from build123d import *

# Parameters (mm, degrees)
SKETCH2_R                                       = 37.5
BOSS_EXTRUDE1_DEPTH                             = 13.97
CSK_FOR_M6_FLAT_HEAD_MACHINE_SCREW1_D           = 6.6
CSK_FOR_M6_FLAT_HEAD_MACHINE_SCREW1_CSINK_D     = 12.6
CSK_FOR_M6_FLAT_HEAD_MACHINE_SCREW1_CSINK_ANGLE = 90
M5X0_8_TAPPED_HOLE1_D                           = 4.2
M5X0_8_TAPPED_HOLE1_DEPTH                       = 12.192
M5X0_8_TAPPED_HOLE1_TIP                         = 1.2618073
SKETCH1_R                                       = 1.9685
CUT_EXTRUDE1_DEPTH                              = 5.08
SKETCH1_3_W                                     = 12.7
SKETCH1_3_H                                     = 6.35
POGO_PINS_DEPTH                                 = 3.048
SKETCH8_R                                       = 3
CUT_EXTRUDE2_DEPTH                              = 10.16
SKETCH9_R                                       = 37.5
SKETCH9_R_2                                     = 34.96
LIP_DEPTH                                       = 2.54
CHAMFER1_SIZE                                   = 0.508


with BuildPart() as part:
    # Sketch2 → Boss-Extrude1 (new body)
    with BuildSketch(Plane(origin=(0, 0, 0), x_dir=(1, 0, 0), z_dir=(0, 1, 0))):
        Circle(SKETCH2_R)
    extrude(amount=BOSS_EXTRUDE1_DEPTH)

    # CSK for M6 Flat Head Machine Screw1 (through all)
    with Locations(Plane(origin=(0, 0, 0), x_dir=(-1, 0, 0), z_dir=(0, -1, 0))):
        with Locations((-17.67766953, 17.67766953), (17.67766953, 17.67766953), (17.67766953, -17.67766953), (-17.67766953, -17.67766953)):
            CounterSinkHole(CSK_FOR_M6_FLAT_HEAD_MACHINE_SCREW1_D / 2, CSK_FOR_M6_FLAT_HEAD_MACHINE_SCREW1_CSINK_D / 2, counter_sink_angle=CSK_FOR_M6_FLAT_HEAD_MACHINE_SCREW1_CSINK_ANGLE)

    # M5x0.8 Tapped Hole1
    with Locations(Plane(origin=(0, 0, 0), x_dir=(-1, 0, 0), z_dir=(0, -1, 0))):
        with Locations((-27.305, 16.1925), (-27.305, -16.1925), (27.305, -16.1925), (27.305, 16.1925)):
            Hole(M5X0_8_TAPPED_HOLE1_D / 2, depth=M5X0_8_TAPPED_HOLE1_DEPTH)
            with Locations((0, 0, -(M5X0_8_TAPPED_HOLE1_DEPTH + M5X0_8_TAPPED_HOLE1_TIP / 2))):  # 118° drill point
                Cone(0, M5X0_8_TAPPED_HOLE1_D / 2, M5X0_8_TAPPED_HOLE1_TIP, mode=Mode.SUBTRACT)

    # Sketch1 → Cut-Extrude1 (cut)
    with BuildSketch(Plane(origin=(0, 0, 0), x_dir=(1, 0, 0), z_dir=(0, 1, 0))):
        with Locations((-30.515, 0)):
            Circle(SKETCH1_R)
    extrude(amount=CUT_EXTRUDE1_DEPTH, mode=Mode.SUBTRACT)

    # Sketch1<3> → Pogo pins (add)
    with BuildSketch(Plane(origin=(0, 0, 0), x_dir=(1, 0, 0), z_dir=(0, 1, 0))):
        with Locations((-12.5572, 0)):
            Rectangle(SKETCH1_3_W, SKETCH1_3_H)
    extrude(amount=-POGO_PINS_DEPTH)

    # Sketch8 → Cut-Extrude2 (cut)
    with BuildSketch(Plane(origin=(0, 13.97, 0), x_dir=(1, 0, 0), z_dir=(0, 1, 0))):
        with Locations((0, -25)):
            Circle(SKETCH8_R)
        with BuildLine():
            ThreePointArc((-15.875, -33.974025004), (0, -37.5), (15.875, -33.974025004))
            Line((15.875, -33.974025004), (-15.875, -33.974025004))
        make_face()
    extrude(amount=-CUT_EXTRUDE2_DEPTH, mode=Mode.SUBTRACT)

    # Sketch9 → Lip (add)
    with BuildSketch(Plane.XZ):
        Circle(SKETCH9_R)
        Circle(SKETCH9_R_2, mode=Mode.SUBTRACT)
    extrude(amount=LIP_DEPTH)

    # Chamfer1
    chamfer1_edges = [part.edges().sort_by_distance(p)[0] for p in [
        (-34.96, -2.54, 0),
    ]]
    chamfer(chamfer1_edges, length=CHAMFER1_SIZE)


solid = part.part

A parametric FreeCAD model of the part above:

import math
import FreeCAD as App
import Part
import Sketcher
Q = App.Units.Quantity


def edges_at(feature, points):
    """Names of the edges that pass closest to the given points."""
    edges = feature.Shape.Edges
    near = lambda p: min(range(len(edges)), key=lambda i: edges[i].distToShape(Part.Vertex(*p))[0])
    return sorted({f"Edge{near(p) + 1}" for p in points})

doc = App.newDocument("Part")
params = doc.addObject("Spreadsheet::Sheet", "Params")
for row, (alias, value) in enumerate([
    ("pad1_length", "0.55 in"),
    ("hole_diameter", "6.6 mm"),
    ("hole_csink_diameter", "12.6 mm"),
    ("hole2_diameter", "4.2 mm"),
    ("hole2_depth", "0.48 in"),
    ("sketch4_diameter", "0.155 in"),
    ("pocket1_length", "0.2 in"),
    ("sketch5_width", "0.5 in"),
    ("sketch5_height", "0.25 in"),
    ("pad2_length", "0.12 in"),
    ("sketch6_width", "1.25 in"),
    ("pocket2_length", "0.4 in"),
    ("pad3_length", "0.1 in"),
    ("chamfer_size", "0.02 in"),
], start=1):
    params.set(f"A{row}", alias)
    params.set(f"B{row}", "=" + value)
    params.setAlias(f"B{row}", alias)

body = doc.addObject("PartDesign::Body", "Body")

# Sketch on XZ plane
sketch1 = body.newObject("Sketcher::SketchObject", "Sketch")
sketch1.AttachmentSupport = (doc.getObject("XZ_Plane"), [""])
sketch1.MapMode = "FlatFace"
sketch1.addGeometry(Part.Circle(App.Vector(0, 0, 0), App.Vector(0, 0, 1), 37.5), False)
sketch1.addConstraint(Sketcher.Constraint("Coincident", 0, 3, -1, 1))
sketch1.addConstraint(Sketcher.Constraint("Diameter", 0, 75.0))
pad1 = body.newObject("PartDesign::Pad", "Pad")
pad1.Profile = sketch1
pad1.setExpression("Length", "Params.pad1_length")
pad1.Reversed = True

# Sketch on XZ plane
sketch2 = body.newObject("Sketcher::SketchObject", "Sketch001")
sketch2.AttachmentSupport = (doc.getObject("XZ_Plane"), [""])
sketch2.MapMode = "FlatFace"
sketch2.addGeometry(Part.Circle(App.Vector(17.67767, -17.67767, 0), App.Vector(0, 0, 1), 3.3), False)
sketch2.addGeometry(Part.Circle(App.Vector(-17.67767, -17.67767, 0), App.Vector(0, 0, 1), 3.3), False)
sketch2.addGeometry(Part.Circle(App.Vector(-17.67767, 17.67767, 0), App.Vector(0, 0, 1), 3.3), False)
sketch2.addGeometry(Part.Circle(App.Vector(17.67767, 17.67767, 0), App.Vector(0, 0, 1), 3.3), False)
sketch2.addConstraint(Sketcher.Constraint("Equal", 0, 1))
sketch2.addConstraint(Sketcher.Constraint("Equal", 1, 2))
sketch2.addConstraint(Sketcher.Constraint("Equal", 2, 3))
sketch2.addConstraint(Sketcher.Constraint("Symmetric", 0, 3, 2, 3, -1, 1))
sketch2.addConstraint(Sketcher.Constraint("Symmetric", 1, 3, 3, 3, -1, 1))
sketch2.addConstraint(Sketcher.Constraint("Symmetric", 0, 3, 1, 3, -2))
sketch2.addConstraint(Sketcher.Constraint("Diameter", 0, 6.6))
sketch2.addConstraint(Sketcher.Constraint("DistanceX", -1, 1, 0, 3, 17.67767))
sketch2.addConstraint(Sketcher.Constraint("DistanceY", 0, 3, -1, 1, 17.67767))
doc.recompute()
hole = body.newObject("PartDesign::Hole", "Hole")
hole.Profile = sketch2
hole.ThreadType = "None"
hole.setExpression("Diameter", "Params.hole_diameter")
hole.DepthType = "ThroughAll"
hole.HoleCutType = "Countersink"
hole.setExpression("HoleCutDiameter", "Params.hole_csink_diameter")
hole.HoleCutCountersinkAngle = 90

# Sketch on XZ plane
sketch3 = body.newObject("Sketcher::SketchObject", "Sketch002")
sketch3.AttachmentSupport = (doc.getObject("XZ_Plane"), [""])
sketch3.MapMode = "FlatFace"
sketch3.addGeometry(Part.Circle(App.Vector(27.305, -16.1925, 0), App.Vector(0, 0, 1), 2.1), False)
sketch3.addGeometry(Part.Circle(App.Vector(27.305, 16.1925, 0), App.Vector(0, 0, 1), 2.1), False)
sketch3.addGeometry(Part.Circle(App.Vector(-27.305, 16.1925, 0), App.Vector(0, 0, 1), 2.1), False)
sketch3.addGeometry(Part.Circle(App.Vector(-27.305, -16.1925, 0), App.Vector(0, 0, 1), 2.1), False)
sketch3.addConstraint(Sketcher.Constraint("Equal", 0, 1))
sketch3.addConstraint(Sketcher.Constraint("Equal", 1, 2))
sketch3.addConstraint(Sketcher.Constraint("Equal", 2, 3))
sketch3.addConstraint(Sketcher.Constraint("Symmetric", 0, 3, 2, 3, -1, 1))
sketch3.addConstraint(Sketcher.Constraint("Symmetric", 1, 3, 3, 3, -1, 1))
sketch3.addConstraint(Sketcher.Constraint("Symmetric", 1, 3, 2, 3, -2))
sketch3.addConstraint(Sketcher.Constraint("Diameter", 0, 4.2))
sketch3.addConstraint(Sketcher.Constraint("DistanceX", 2, 3, 1, 3, Q("2.15 in")))
sketch3.addConstraint(Sketcher.Constraint("DistanceY", 0, 3, 1, 3, Q("1.275 in")))
doc.recompute()
hole2 = body.newObject("PartDesign::Hole", "Hole001")
hole2.Profile = sketch3
hole2.ThreadType = "None"
hole2.setExpression("Diameter", "Params.hole2_diameter")
hole2.DepthType = "Dimension"
hole2.setExpression("Depth", "Params.hole2_depth")
hole2.DrillPoint = "Angled"
hole2.DrillPointAngle = 118

# Sketch on XZ plane
sketch4 = body.newObject("Sketcher::SketchObject", "Sketch003")
sketch4.AttachmentSupport = (doc.getObject("XZ_Plane"), [""])
sketch4.MapMode = "FlatFace"
sketch4.addGeometry(Part.Circle(App.Vector(-30.515, 0, 0), App.Vector(0, 0, 1), 1.9685), False)
sketch4.addConstraint(Sketcher.Constraint("PointOnObject", 0, 3, -1))
sketch4.addConstraint(Sketcher.Constraint("Diameter", 0, Q("0.155 in")))
sketch4.addConstraint(Sketcher.Constraint("DistanceX", 0, 3, -1, 1, 30.515))
sketch4.setExpression("Constraints[1]", "Params.sketch4_diameter")
pocket1 = body.newObject("PartDesign::Pocket", "Pocket")
pocket1.Profile = sketch4
pocket1.setExpression("Length", "Params.pocket1_length")

# Sketch on XZ plane
sketch5 = body.newObject("Sketcher::SketchObject", "Sketch004")
sketch5.AttachmentSupport = (doc.getObject("XZ_Plane"), [""])
sketch5.MapMode = "FlatFace"
sketch5.addGeometry(Part.LineSegment(App.Vector(-18.9072, -3.175, 0), App.Vector(-18.9072, 3.175, 0)), False)
sketch5.addGeometry(Part.LineSegment(App.Vector(-18.9072, 3.175, 0), App.Vector(-6.2072, 3.175, 0)), False)
sketch5.addGeometry(Part.LineSegment(App.Vector(-6.2072, 3.175, 0), App.Vector(-6.2072, -3.175, 0)), False)
sketch5.addGeometry(Part.LineSegment(App.Vector(-6.2072, -3.175, 0), App.Vector(-18.9072, -3.175, 0)), False)
sketch5.addConstraint(Sketcher.Constraint("Coincident", 0, 2, 1, 1))
sketch5.addConstraint(Sketcher.Constraint("Coincident", 1, 2, 2, 1))
sketch5.addConstraint(Sketcher.Constraint("Coincident", 2, 2, 3, 1))
sketch5.addConstraint(Sketcher.Constraint("Coincident", 3, 2, 0, 1))
sketch5.addConstraint(Sketcher.Constraint("Vertical", 0))
sketch5.addConstraint(Sketcher.Constraint("Horizontal", 1))
sketch5.addConstraint(Sketcher.Constraint("Vertical", 2))
sketch5.addConstraint(Sketcher.Constraint("Horizontal", 3))
sketch5.addConstraint(Sketcher.Constraint("DistanceX", 1, 1, 1, 2, Q("0.5 in")))
sketch5.addConstraint(Sketcher.Constraint("DistanceY", 0, 1, 0, 2, Q("0.25 in")))
sketch5.addConstraint(Sketcher.Constraint("DistanceY", -1, 1, 0, 2, Q("0.125 in")))
sketch5.addConstraint(Sketcher.Constraint("DistanceX", 0, 2, -1, 1, 18.9072))
sketch5.setExpression("Constraints[8]", "Params.sketch5_width")
sketch5.setExpression("Constraints[9]", "Params.sketch5_height")
pad2 = body.newObject("PartDesign::Pad", "Pad001")
pad2.Profile = sketch5
pad2.setExpression("Length", "Params.pad2_length")

# Sketch on XZ plane
sketch6 = body.newObject("Sketcher::SketchObject", "Sketch005")
sketch6.AttachmentSupport = (doc.getObject("XZ_Plane"), [""])
sketch6.MapMode = "FlatFace"
sketch6.AttachmentOffset = App.Placement(App.Vector(0, 0, -0.55 * 25.4), App.Rotation())
sketch6.addGeometry(Part.Circle(App.Vector(0, 25, 0), App.Vector(0, 0, 1), 3), False)
sketch6.addGeometry(Part.ArcOfCircle(Part.Circle(App.Vector(0, 0, 0), App.Vector(0, 0, 1), 37.5), math.radians(64.954786), math.radians(115.045214)), False)
sketch6.addGeometry(Part.LineSegment(App.Vector(15.875, 33.974025, 0), App.Vector(-15.875, 33.974025, 0)), False)
sketch6.addConstraint(Sketcher.Constraint("Coincident", 1, 1, 2, 1))
sketch6.addConstraint(Sketcher.Constraint("Coincident", 2, 2, 1, 2))
sketch6.addConstraint(Sketcher.Constraint("Horizontal", 2))
sketch6.addConstraint(Sketcher.Constraint("Coincident", 1, 3, -1, 1))
sketch6.addConstraint(Sketcher.Constraint("PointOnObject", 0, 3, -2))
sketch6.addConstraint(Sketcher.Constraint("DistanceX", 2, 2, 2, 1, Q("1.25 in")))
sketch6.addConstraint(Sketcher.Constraint("Diameter", 0, 6.0))
sketch6.addConstraint(Sketcher.Constraint("Radius", 1, 37.5))
sketch6.addConstraint(Sketcher.Constraint("DistanceY", -1, 1, 0, 3, 25.0))
sketch6.setExpression("Constraints[5]", "Params.sketch6_width")
pocket2 = body.newObject("PartDesign::Pocket", "Pocket001")
pocket2.Profile = sketch6
pocket2.setExpression("Length", "Params.pocket2_length")
pocket2.Reversed = True

# Sketch on XZ plane
sketch7 = body.newObject("Sketcher::SketchObject", "Sketch006")
sketch7.AttachmentSupport = (doc.getObject("XZ_Plane"), [""])
sketch7.MapMode = "FlatFace"
sketch7.addGeometry(Part.Circle(App.Vector(0, 0, 0), App.Vector(0, 0, 1), 37.5), False)
sketch7.addGeometry(Part.Circle(App.Vector(0, 0, 0), App.Vector(0, 0, 1), 34.96), False)
sketch7.addConstraint(Sketcher.Constraint("Coincident", 0, 3, -1, 1))
sketch7.addConstraint(Sketcher.Constraint("Coincident", 1, 3, -1, 1))
sketch7.addConstraint(Sketcher.Constraint("Diameter", 0, 75.0))
sketch7.addConstraint(Sketcher.Constraint("Diameter", 1, 69.92))
pad3 = body.newObject("PartDesign::Pad", "Pad002")
pad3.Profile = sketch7
pad3.setExpression("Length", "Params.pad3_length")
doc.recompute()

chamfer = body.newObject("PartDesign::Chamfer", "Chamfer")
chamfer.Base = (pad3, edges_at(pad3, [(-34.96, -2.54, 0)]))
chamfer.setExpression("Size", "Params.chamfer_size")

doc.recompute()
